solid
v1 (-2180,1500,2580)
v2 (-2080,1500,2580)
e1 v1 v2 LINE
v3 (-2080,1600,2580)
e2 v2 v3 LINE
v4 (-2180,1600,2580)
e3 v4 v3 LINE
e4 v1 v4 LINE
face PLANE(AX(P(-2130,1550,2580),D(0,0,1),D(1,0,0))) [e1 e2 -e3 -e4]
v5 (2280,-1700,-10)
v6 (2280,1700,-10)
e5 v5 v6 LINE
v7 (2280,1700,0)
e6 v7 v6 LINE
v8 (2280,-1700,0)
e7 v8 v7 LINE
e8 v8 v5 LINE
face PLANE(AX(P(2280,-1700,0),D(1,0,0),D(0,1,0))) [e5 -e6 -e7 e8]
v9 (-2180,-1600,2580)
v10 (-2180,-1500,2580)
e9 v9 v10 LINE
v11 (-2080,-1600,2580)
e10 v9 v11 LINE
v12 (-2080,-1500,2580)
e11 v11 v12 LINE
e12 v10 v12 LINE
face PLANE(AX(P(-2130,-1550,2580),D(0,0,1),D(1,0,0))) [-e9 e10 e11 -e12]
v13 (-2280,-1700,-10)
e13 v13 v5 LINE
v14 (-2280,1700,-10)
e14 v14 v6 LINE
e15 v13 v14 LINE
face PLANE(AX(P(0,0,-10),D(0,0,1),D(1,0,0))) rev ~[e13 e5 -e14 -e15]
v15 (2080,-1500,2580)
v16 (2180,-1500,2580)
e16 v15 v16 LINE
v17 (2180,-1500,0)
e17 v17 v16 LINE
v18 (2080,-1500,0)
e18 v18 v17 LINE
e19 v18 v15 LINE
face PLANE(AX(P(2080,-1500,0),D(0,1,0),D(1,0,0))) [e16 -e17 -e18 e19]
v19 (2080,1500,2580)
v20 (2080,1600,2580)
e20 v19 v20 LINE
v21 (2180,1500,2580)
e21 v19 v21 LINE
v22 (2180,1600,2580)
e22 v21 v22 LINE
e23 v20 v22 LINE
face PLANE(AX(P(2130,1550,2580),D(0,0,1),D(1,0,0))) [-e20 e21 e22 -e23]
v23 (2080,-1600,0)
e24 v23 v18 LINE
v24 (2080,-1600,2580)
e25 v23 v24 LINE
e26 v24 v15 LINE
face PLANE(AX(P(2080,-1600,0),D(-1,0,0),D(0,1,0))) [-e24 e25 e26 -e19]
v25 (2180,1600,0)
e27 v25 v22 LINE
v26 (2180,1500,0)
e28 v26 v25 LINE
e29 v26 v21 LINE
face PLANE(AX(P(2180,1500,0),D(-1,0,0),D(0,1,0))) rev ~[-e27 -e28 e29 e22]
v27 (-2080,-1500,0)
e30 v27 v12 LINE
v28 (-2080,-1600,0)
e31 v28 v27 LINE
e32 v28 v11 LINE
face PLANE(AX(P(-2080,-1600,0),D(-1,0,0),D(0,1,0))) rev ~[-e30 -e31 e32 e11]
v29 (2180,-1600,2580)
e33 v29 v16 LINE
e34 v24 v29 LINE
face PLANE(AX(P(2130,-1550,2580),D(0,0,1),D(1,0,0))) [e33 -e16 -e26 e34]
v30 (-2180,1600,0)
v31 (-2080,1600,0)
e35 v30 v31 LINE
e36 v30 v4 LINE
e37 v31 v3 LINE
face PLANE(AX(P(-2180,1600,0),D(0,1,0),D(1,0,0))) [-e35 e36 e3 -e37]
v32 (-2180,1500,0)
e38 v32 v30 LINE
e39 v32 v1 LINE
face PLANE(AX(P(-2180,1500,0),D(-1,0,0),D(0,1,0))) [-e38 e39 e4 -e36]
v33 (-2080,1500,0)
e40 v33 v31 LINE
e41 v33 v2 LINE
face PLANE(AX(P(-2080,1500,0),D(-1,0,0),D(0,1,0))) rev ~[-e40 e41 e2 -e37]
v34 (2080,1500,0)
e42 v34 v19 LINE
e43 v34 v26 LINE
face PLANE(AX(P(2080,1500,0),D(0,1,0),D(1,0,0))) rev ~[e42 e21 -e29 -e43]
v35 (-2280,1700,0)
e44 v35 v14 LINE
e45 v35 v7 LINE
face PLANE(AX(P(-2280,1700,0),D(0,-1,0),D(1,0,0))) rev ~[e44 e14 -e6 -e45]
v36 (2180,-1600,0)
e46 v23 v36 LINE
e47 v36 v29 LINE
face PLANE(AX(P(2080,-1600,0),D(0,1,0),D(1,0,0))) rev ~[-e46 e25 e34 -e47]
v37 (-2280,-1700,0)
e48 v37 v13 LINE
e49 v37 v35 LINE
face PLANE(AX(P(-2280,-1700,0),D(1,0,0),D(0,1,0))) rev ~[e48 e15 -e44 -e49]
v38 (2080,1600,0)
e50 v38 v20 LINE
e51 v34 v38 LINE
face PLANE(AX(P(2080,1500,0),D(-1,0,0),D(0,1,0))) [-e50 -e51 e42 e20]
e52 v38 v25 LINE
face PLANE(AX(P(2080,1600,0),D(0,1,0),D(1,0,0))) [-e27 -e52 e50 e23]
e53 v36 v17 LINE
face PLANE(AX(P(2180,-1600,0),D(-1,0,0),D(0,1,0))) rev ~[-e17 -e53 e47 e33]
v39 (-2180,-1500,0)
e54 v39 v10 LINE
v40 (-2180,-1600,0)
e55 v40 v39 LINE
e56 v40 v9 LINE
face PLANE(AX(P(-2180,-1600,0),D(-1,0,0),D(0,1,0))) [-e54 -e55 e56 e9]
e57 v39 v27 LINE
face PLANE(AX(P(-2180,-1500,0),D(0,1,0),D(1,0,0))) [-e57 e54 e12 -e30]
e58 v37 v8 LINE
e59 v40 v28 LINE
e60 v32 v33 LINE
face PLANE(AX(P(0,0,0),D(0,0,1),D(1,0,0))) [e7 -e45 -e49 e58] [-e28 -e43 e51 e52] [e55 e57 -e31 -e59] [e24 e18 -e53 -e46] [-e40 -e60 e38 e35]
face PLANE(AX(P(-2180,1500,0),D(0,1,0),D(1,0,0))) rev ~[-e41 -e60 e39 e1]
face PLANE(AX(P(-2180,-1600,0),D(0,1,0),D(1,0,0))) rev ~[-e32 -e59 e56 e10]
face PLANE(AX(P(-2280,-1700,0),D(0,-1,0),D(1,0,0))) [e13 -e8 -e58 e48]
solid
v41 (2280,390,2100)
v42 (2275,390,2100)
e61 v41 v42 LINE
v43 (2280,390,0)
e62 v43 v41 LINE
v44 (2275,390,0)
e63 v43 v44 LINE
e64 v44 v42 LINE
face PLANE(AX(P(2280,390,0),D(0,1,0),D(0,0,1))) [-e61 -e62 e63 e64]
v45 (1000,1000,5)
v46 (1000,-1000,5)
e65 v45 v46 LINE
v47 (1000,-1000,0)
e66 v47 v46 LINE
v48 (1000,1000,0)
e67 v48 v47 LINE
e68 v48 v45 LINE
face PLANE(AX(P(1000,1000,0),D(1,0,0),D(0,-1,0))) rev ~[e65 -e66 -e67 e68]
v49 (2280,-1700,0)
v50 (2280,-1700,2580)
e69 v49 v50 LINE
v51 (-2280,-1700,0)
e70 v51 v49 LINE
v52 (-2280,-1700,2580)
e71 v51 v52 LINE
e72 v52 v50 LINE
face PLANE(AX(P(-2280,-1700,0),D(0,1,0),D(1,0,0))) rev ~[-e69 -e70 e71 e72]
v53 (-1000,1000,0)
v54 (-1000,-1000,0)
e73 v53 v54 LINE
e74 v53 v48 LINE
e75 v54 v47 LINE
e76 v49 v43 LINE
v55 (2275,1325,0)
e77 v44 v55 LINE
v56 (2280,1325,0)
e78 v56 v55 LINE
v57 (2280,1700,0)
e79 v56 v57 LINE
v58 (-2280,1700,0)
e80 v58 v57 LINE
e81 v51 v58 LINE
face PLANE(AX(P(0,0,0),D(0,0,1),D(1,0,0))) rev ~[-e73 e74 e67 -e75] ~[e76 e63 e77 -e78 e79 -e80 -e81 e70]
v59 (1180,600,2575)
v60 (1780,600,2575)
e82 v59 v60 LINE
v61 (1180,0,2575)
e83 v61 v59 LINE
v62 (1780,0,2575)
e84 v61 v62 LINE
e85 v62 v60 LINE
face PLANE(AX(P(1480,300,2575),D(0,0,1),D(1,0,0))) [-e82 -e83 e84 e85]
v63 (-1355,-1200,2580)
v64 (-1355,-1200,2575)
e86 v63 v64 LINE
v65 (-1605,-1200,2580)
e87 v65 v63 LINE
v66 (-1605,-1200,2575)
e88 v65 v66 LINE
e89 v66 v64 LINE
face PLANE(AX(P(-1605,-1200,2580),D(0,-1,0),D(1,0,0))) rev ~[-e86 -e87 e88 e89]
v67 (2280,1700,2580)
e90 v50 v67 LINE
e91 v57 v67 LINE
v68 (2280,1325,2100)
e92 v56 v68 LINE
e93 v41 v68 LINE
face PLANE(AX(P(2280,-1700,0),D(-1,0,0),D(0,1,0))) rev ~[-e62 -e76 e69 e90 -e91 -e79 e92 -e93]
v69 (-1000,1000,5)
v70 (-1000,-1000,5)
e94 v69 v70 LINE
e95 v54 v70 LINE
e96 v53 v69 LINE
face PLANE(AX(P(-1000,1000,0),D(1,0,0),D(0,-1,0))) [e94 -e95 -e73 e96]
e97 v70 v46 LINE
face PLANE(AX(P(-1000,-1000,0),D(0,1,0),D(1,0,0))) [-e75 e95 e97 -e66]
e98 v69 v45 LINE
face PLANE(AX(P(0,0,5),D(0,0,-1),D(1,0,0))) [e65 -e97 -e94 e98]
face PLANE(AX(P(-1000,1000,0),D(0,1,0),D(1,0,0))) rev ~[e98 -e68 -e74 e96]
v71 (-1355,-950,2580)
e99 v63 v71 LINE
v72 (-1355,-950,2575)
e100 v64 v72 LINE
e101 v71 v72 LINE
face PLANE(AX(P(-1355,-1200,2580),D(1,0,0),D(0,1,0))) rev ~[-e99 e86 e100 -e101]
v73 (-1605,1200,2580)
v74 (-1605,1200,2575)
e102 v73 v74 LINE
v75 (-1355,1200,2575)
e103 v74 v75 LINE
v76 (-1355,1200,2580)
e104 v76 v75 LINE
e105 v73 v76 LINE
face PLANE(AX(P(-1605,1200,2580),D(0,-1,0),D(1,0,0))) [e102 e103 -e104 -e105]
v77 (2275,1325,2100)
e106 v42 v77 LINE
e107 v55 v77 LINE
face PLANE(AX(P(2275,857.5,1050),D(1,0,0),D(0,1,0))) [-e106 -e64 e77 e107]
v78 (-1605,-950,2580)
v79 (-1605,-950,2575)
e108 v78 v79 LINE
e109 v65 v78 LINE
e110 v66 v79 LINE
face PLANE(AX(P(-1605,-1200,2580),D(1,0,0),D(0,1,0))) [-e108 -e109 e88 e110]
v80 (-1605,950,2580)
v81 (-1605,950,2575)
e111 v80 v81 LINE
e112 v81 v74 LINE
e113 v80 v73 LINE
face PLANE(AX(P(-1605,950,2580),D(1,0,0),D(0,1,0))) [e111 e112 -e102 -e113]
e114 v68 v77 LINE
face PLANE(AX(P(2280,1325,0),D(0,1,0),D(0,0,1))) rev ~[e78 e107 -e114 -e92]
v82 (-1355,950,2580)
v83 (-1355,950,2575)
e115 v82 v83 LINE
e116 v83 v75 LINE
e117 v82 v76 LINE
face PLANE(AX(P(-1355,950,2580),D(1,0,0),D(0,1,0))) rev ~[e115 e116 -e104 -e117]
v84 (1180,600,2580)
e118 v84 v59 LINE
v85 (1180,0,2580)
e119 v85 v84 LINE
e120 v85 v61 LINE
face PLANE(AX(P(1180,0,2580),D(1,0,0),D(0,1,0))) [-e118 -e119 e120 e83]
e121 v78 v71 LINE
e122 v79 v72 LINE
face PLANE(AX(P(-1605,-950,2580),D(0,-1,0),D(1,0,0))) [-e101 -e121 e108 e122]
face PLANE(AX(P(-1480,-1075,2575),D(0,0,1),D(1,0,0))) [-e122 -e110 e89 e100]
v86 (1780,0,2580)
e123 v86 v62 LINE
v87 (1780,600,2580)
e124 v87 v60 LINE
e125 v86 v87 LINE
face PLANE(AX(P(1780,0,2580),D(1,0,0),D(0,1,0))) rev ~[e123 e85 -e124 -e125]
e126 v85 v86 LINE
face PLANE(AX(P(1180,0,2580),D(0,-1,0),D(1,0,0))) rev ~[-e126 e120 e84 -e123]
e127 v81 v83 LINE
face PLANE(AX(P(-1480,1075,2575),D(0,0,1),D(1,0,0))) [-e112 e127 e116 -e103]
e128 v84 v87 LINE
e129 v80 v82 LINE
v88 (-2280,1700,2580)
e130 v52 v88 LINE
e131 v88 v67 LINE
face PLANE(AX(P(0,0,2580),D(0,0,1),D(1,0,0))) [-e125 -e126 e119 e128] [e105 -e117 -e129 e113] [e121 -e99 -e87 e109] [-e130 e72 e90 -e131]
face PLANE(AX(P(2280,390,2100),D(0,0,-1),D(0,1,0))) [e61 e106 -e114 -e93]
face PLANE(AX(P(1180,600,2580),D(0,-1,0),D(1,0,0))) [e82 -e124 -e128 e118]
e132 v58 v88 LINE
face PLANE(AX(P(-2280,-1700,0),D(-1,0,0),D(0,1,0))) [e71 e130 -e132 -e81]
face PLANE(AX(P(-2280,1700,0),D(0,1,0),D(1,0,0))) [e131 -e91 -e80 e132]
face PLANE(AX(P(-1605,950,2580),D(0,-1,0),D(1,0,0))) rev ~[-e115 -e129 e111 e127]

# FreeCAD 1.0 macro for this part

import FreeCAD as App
import Part
import Sketcher

V = App.Vector

doc = App.newDocument("Part")
body = doc.addObject("PartDesign::Body", "Body")

sketch1 = body.newObject("Sketcher::SketchObject", "Sketch")
sketch1.AttachmentSupport = (doc.getObject("XY_Plane"), [""])
sketch1.MapMode = "FlatFace"
sketch1.addGeometry([
    Part.LineSegment(V(-2280, 1700, 0), V(-2280, -1700, 0)),
    Part.LineSegment(V(-2280, -1700, 0), V(2280, -1700, 0)),
    Part.LineSegment(V(2280, -1700, 0), V(2280, 1700, 0)),
    Part.LineSegment(V(2280, 1700, 0), V(-2280, 1700, 0)),
], False)
sketch1.addConstraint([
    Sketcher.Constraint("Coincident", 0, 2, 1, 1),
    Sketcher.Constraint("Coincident", 1, 2, 2, 1),
    Sketcher.Constraint("Coincident", 2, 2, 3, 1),
    Sketcher.Constraint("Coincident", 3, 2, 0, 1),
    Sketcher.Constraint("Vertical", 0),
    Sketcher.Constraint("Horizontal", 1),
    Sketcher.Constraint("Vertical", 2),
    Sketcher.Constraint("Horizontal", 3),
    Sketcher.Constraint("Symmetric", 0, 2, 2, 2, -1, 1),
    Sketcher.Constraint("DistanceX", 1, 1, 1, 2, 4560.0),
    Sketcher.Constraint("DistanceY", 0, 2, 0, 1, 3400.0),
])
pad1 = body.newObject("PartDesign::Pad", "Pad")
pad1.Profile = sketch1
pad1.Length = 2580

sketch2 = body.newObject("Sketcher::SketchObject", "Sketch001")
sketch2.AttachmentSupport = (doc.getObject("YZ_Plane"), [""])
sketch2.MapMode = "FlatFace"
sketch2.AttachmentOffset = App.Placement(V(0, 0, 2280), App.Rotation())
sketch2.addGeometry([
    Part.LineSegment(V(390, 2100, 0), V(390, 0, 0)),
    Part.LineSegment(V(390, 0, 0), V(1325, 0, 0)),
    Part.LineSegment(V(1325, 0, 0), V(1325, 2100, 0)),
    Part.LineSegment(V(1325, 2100, 0), V(390, 2100, 0)),
], False)
sketch2.addConstraint([
    Sketcher.Constraint("Coincident", 0, 2, 1, 1),
    Sketcher.Constraint("Coincident", 1, 2, 2, 1),
    Sketcher.Constraint("Coincident", 2, 2, 3, 1),
    Sketcher.Constraint("Coincident", 3, 2, 0, 1),
    Sketcher.Constraint("Vertical", 0),
    Sketcher.Constraint("Horizontal", 1),
    Sketcher.Constraint("Vertical", 2),
    Sketcher.Constraint("Horizontal", 3),
    Sketcher.Constraint("PointOnObject", 0, 2, -1),
    Sketcher.Constraint("DistanceX", 1, 1, 1, 2, 935.0),
    Sketcher.Constraint("DistanceY", 0, 2, 0, 1, 2100.0),
    Sketcher.Constraint("DistanceX", -1, 1, 0, 2, 390.0),
])
pocket1 = body.newObject("PartDesign::Pocket", "Pocket")
pocket1.Profile = sketch2
pocket1.Length = 5

sketch3 = body.newObject("Sketcher::SketchObject", "Sketch002")
sketch3.AttachmentSupport = (doc.getObject("YZ_Plane"), [""])
sketch3.MapMode = "FlatFace"
sketch3.AttachmentOffset = App.Placement(V(0, 0, -2280), App.Rotation())
sketch3.addGeometry([
    Part.LineSegment(V(-1000, 2425, 0), V(-1000, 800, 0)),
    Part.LineSegment(V(-1000, 800, 0), V(1000, 800, 0)),
    Part.LineSegment(V(1000, 800, 0), V(1000, 2425, 0)),
    Part.LineSegment(V(1000, 2425, 0), V(-1000, 2425, 0)),
], False)
sketch3.addConstraint([
    Sketcher.Constraint("Coincident", 0, 2, 1, 1),
    Sketcher.Constraint("Coincident", 1, 2, 2, 1),
    Sketcher.Constraint("Coincident", 2, 2, 3, 1),
    Sketcher.Constraint("Coincident", 3, 2, 0, 1),
    Sketcher.Constraint("Vertical", 0),
    Sketcher.Constraint("Horizontal", 1),
    Sketcher.Constraint("Vertical", 2),
    Sketcher.Constraint("Horizontal", 3),
    Sketcher.Constraint("DistanceX", 1, 1, 1, 2, 2000.0),
    Sketcher.Constraint("DistanceY", 0, 2, 0, 1, 1625.0),
    Sketcher.Constraint("DistanceX", 0, 2, -1, 1, 1000.0),
    Sketcher.Constraint("DistanceY", -1, 1, 0, 2, 800.0),
])
pocket2 = body.newObject("PartDesign::Pocket", "Pocket001")
pocket2.Profile = sketch3
pocket2.Length = 5

sketch4 = body.newObject("Sketcher::SketchObject", "Sketch003")
sketch4.AttachmentSupport = (doc.getObject("XY_Plane"), [""])
sketch4.MapMode = "FlatFace"
sketch4.AttachmentOffset = App.Placement(V(0, 0, 2580), App.Rotation())
sketch4.addGeometry([
    Part.LineSegment(V(-1605, 1200, 0), V(-1605, 950, 0)),
    Part.LineSegment(V(-1605, 950, 0), V(-1355, 950, 0)),
    Part.LineSegment(V(-1355, 950, 0), V(-1355, 1200, 0)),
    Part.LineSegment(V(-1355, 1200, 0), V(-1605, 1200, 0)),
    Part.LineSegment(V(-1605, -950, 0), V(-1605, -1200, 0)),
    Part.LineSegment(V(-1605, -1200, 0), V(-1355, -1200, 0)),
    Part.LineSegment(V(-1355, -1200, 0), V(-1355, -950, 0)),
    Part.LineSegment(V(-1355, -950, 0), V(-1605, -950, 0)),
    Part.LineSegment(V(1180, 600, 0), V(1180, 0, 0)),
    Part.LineSegment(V(1180, 0, 0), V(1780, 0, 0)),
    Part.LineSegment(V(1780, 0, 0), V(1780, 600, 0)),
    Part.LineSegment(V(1780, 600, 0), V(1180, 600, 0)),
], False)
sketch4.addConstraint([
    Sketcher.Constraint("Coincident", 0, 2, 1, 1),
    Sketcher.Constraint("Coincident", 1, 2, 2, 1),
    Sketcher.Constraint("Coincident", 2, 2, 3, 1),
    Sketcher.Constraint("Coincident", 3, 2, 0, 1),
    Sketcher.Constraint("Coincident", 4, 2, 5, 1),
    Sketcher.Constraint("Coincident", 5, 2, 6, 1),
    Sketcher.Constraint("Coincident", 6, 2, 7, 1),
    Sketcher.Constraint("Coincident", 7, 2, 4, 1),
    Sketcher.Constraint("Coincident", 8, 2, 9, 1),
    Sketcher.Constraint("Coincident", 9, 2, 10, 1),
    Sketcher.Constraint("Coincident", 10, 2, 11, 1),
    Sketcher.Constraint("Coincident", 11, 2, 8, 1),
    Sketcher.Constraint("Vertical", 0),
    Sketcher.Constraint("Horizontal", 1),
    Sketcher.Constraint("Vertical", 2),
    Sketcher.Constraint("Horizontal", 3),
    Sketcher.Constraint("Vertical", 4),
    Sketcher.Constraint("Horizontal", 5),
    Sketcher.Constraint("Vertical", 6),
    Sketcher.Constraint("Horizontal", 7),
    Sketcher.Constraint("Vertical", 8),
    Sketcher.Constraint("Horizontal", 9),
    Sketcher.Constraint("Vertical", 10),
    Sketcher.Constraint("Horizontal", 11),
    Sketcher.Constraint("Symmetric", 3, 2, 4, 2, -1),
    Sketcher.Constraint("Symmetric", 1, 2, 6, 2, -1),
    Sketcher.Constraint("PointOnObject", 8, 2, -1),
    Sketcher.Constraint("Equal", 7, 0),
    Sketcher.Constraint("Equal", 11, 8),
    Sketcher.Constraint("DistanceX", 1, 1, 1, 2, 250.0),
    Sketcher.Constraint("DistanceX", 9, 1, 9, 2, 600.0),
    Sketcher.Constraint("DistanceX", 0, 2, -1, 1, 1605.0),
    Sketcher.Constraint("DistanceY", -1, 1, 0, 2, 950.0),
    Sketcher.Constraint("DistanceX", -1, 1, 8, 2, 1180.0),
])
pocket3 = body.newObject("PartDesign::Pocket", "Pocket002")
pocket3.Profile = sketch4
pocket3.Length = 5

sketch5 = body.newObject("Sketcher::SketchObject", "Sketch004")
sketch5.AttachmentSupport = (doc.getObject("XY_Plane"), [""])
sketch5.MapMode = "FlatFace"
sketch5.addGeometry([
    Part.LineSegment(V(-1000, -1000, 0), V(-1000, 1000, 0)),
    Part.LineSegment(V(-1000, 1000, 0), V(1000, 1000, 0)),
    Part.LineSegment(V(1000, 1000, 0), V(1000, -1000, 0)),
    Part.LineSegment(V(1000, -1000, 0), V(-1000, -1000, 0)),
], False)
sketch5.addConstraint([
    Sketcher.Constraint("Coincident", 0, 2, 1, 1),
    Sketcher.Constraint("Coincident", 1, 2, 2, 1),
    Sketcher.Constraint("Coincident", 2, 2, 3, 1),
    Sketcher.Constraint("Coincident", 3, 2, 0, 1),
    Sketcher.Constraint("Vertical", 0),
    Sketcher.Constraint("Horizontal", 1),
    Sketcher.Constraint("Vertical", 2),
    Sketcher.Constraint("Horizontal", 3),
    Sketcher.Constraint("Symmetric", 0, 2, 2, 2, -1, 1),
    Sketcher.Constraint("Equal", 3, 0),
    Sketcher.Constraint("DistanceX", 1, 1, 1, 2, 2000.0),
])
pocket4 = body.newObject("PartDesign::Pocket", "Pocket003")
pocket4.Profile = sketch5
pocket4.Length = 5
pocket4.Reversed = True
body2 = doc.addObject("PartDesign::Body", "Body001")

sketch6 = body2.newObject("Sketcher::SketchObject", "Sketch005")
sketch6.AttachmentSupport = (doc.getObject("XY_Plane001"), [""])
sketch6.MapMode = "FlatFace"
sketch6.addGeometry([
    Part.LineSegment(V(-2280, 1700, 0), V(-2280, -1700, 0)),
    Part.LineSegment(V(-2280, -1700, 0), V(2280, -1700, 0)),
    Part.LineSegment(V(2280, -1700, 0), V(2280, 1700, 0)),
    Part.LineSegment(V(2280, 1700, 0), V(-2280, 1700, 0)),
], False)
sketch6.addConstraint([
    Sketcher.Constraint("Coincident", 0, 2, 1, 1),
    Sketcher.Constraint("Coincident", 1, 2, 2, 1),
    Sketcher.Constraint("Coincident", 2, 2, 3, 1),
    Sketcher.Constraint("Coincident", 3, 2, 0, 1),
    Sketcher.Constraint("Vertical", 0),
    Sketcher.Constraint("Horizontal", 1),
    Sketcher.Constraint("Vertical", 2),
    Sketcher.Constraint("Horizontal", 3),
    Sketcher.Constraint("Symmetric", 0, 2, 2, 2, -1, 1),
    Sketcher.Constraint("DistanceX", 1, 1, 1, 2, 4560.0),
    Sketcher.Constraint("DistanceY", 0, 2, 0, 1, 3400.0),
])
pad2 = body2.newObject("PartDesign::Pad", "Pad001")
pad2.Profile = sketch6
pad2.Length = 10
pad2.Reversed = True

sketch7 = body2.newObject("Sketcher::SketchObject", "Sketch006")
sketch7.AttachmentSupport = (doc.getObject("XY_Plane001"), [""])
sketch7.MapMode = "FlatFace"
sketch7.addGeometry([
    Part.LineSegment(V(-2180, 1600, 0), V(-2180, 1500, 0)),
    Part.LineSegment(V(-2180, 1500, 0), V(-2080, 1500, 0)),
    Part.LineSegment(V(-2080, 1500, 0), V(-2080, 1600, 0)),
    Part.LineSegment(V(-2080, 1600, 0), V(-2180, 1600, 0)),
    Part.LineSegment(V(2080, 1600, 0), V(2080, 1500, 0)),
    Part.LineSegment(V(2080, 1500, 0), V(2180, 1500, 0)),
    Part.LineSegment(V(2180, 1500, 0), V(2180, 1600, 0)),
    Part.LineSegment(V(2180, 1600, 0), V(2080, 1600, 0)),
    Part.LineSegment(V(2080, -1500, 0), V(2080, -1600, 0)),
    Part.LineSegment(V(2080, -1600, 0), V(2180, -1600, 0)),
    Part.LineSegment(V(2180, -1600, 0), V(2180, -1500, 0)),
    Part.LineSegment(V(2180, -1500, 0), V(2080, -1500, 0)),
    Part.LineSegment(V(-2180, -1500, 0), V(-2180, -1600, 0)),
    Part.LineSegment(V(-2180, -1600, 0), V(-2080, -1600, 0)),
    Part.LineSegment(V(-2080, -1600, 0), V(-2080, -1500, 0)),
    Part.LineSegment(V(-2080, -1500, 0), V(-2180, -1500, 0)),
], False)
sketch7.addConstraint([
    Sketcher.Constraint("Coincident", 0, 2, 1, 1),
    Sketcher.Constraint("Coincident", 1, 2, 2, 1),
    Sketcher.Constraint("Coincident", 2, 2, 3, 1),
    Sketcher.Constraint("Coincident", 3, 2, 0, 1),
    Sketcher.Constraint("Coincident", 4, 2, 5, 1),
    Sketcher.Constraint("Coincident", 5, 2, 6, 1),
    Sketcher.Constraint("Coincident", 6, 2, 7, 1),
    Sketcher.Constraint("Coincident", 7, 2, 4, 1),
    Sketcher.Constraint("Coincident", 8, 2, 9, 1),
    Sketcher.Constraint("Coincident", 9, 2, 10, 1),
    Sketcher.Constraint("Coincident", 10, 2, 11, 1),
    Sketcher.Constraint("Coincident", 11, 2, 8, 1),
    Sketcher.Constraint("Coincident", 12, 2, 13, 1),
    Sketcher.Constraint("Coincident", 13, 2, 14, 1),
    Sketcher.Constraint("Coincident", 14, 2, 15, 1),
    Sketcher.Constraint("Coincident", 15, 2, 12, 1),
    Sketcher.Constraint("Vertical", 0),
    Sketcher.Constraint("Horizontal", 1),
    Sketcher.Constraint("Vertical", 2),
    Sketcher.Constraint("Horizontal", 3),
    Sketcher.Constraint("Vertical", 4),
    Sketcher.Constraint("Horizontal", 5),
    Sketcher.Constraint("Vertical", 6),
    Sketcher.Constraint("Horizontal", 7),
    Sketcher.Constraint("Vertical", 8),
    Sketcher.Constraint("Horizontal", 9),
    Sketcher.Constraint("Vertical", 10),
    Sketcher.Constraint("Horizontal", 11),
    Sketcher.Constraint("Vertical", 12),
    Sketcher.Constraint("Horizontal", 13),
    Sketcher.Constraint("Vertical", 14),
    Sketcher.Constraint("Horizontal", 15),
    Sketcher.Constraint("Symmetric", 2, 2, 8, 2, -1, 1),
    Sketcher.Constraint("Symmetric", 0, 2, 10, 2, -1, 1),
    Sketcher.Constraint("Symmetric", 6, 2, 12, 2, -1, 1),
    Sketcher.Constraint("Symmetric", 4, 2, 14, 2, -1, 1),
    Sketcher.Constraint("Symmetric", 1, 2, 4, 2, -2),
    Sketcher.Constraint("Symmetric", 3, 2, 6, 2, -2),
    Sketcher.Constraint("Equal", 15, 0),
    Sketcher.Constraint("DistanceX", 1, 1, 1, 2, 100.0),
    Sketcher.Constraint("DistanceX", 0, 2, -1, 1, 2180.0),
    Sketcher.Constraint("DistanceY", -1, 1, 0, 2, 1500.0),
])
pad3 = body2.newObject("PartDesign::Pad", "Pad002")
pad3.Profile = sketch7
pad3.Length = 2580

doc.recompute()
